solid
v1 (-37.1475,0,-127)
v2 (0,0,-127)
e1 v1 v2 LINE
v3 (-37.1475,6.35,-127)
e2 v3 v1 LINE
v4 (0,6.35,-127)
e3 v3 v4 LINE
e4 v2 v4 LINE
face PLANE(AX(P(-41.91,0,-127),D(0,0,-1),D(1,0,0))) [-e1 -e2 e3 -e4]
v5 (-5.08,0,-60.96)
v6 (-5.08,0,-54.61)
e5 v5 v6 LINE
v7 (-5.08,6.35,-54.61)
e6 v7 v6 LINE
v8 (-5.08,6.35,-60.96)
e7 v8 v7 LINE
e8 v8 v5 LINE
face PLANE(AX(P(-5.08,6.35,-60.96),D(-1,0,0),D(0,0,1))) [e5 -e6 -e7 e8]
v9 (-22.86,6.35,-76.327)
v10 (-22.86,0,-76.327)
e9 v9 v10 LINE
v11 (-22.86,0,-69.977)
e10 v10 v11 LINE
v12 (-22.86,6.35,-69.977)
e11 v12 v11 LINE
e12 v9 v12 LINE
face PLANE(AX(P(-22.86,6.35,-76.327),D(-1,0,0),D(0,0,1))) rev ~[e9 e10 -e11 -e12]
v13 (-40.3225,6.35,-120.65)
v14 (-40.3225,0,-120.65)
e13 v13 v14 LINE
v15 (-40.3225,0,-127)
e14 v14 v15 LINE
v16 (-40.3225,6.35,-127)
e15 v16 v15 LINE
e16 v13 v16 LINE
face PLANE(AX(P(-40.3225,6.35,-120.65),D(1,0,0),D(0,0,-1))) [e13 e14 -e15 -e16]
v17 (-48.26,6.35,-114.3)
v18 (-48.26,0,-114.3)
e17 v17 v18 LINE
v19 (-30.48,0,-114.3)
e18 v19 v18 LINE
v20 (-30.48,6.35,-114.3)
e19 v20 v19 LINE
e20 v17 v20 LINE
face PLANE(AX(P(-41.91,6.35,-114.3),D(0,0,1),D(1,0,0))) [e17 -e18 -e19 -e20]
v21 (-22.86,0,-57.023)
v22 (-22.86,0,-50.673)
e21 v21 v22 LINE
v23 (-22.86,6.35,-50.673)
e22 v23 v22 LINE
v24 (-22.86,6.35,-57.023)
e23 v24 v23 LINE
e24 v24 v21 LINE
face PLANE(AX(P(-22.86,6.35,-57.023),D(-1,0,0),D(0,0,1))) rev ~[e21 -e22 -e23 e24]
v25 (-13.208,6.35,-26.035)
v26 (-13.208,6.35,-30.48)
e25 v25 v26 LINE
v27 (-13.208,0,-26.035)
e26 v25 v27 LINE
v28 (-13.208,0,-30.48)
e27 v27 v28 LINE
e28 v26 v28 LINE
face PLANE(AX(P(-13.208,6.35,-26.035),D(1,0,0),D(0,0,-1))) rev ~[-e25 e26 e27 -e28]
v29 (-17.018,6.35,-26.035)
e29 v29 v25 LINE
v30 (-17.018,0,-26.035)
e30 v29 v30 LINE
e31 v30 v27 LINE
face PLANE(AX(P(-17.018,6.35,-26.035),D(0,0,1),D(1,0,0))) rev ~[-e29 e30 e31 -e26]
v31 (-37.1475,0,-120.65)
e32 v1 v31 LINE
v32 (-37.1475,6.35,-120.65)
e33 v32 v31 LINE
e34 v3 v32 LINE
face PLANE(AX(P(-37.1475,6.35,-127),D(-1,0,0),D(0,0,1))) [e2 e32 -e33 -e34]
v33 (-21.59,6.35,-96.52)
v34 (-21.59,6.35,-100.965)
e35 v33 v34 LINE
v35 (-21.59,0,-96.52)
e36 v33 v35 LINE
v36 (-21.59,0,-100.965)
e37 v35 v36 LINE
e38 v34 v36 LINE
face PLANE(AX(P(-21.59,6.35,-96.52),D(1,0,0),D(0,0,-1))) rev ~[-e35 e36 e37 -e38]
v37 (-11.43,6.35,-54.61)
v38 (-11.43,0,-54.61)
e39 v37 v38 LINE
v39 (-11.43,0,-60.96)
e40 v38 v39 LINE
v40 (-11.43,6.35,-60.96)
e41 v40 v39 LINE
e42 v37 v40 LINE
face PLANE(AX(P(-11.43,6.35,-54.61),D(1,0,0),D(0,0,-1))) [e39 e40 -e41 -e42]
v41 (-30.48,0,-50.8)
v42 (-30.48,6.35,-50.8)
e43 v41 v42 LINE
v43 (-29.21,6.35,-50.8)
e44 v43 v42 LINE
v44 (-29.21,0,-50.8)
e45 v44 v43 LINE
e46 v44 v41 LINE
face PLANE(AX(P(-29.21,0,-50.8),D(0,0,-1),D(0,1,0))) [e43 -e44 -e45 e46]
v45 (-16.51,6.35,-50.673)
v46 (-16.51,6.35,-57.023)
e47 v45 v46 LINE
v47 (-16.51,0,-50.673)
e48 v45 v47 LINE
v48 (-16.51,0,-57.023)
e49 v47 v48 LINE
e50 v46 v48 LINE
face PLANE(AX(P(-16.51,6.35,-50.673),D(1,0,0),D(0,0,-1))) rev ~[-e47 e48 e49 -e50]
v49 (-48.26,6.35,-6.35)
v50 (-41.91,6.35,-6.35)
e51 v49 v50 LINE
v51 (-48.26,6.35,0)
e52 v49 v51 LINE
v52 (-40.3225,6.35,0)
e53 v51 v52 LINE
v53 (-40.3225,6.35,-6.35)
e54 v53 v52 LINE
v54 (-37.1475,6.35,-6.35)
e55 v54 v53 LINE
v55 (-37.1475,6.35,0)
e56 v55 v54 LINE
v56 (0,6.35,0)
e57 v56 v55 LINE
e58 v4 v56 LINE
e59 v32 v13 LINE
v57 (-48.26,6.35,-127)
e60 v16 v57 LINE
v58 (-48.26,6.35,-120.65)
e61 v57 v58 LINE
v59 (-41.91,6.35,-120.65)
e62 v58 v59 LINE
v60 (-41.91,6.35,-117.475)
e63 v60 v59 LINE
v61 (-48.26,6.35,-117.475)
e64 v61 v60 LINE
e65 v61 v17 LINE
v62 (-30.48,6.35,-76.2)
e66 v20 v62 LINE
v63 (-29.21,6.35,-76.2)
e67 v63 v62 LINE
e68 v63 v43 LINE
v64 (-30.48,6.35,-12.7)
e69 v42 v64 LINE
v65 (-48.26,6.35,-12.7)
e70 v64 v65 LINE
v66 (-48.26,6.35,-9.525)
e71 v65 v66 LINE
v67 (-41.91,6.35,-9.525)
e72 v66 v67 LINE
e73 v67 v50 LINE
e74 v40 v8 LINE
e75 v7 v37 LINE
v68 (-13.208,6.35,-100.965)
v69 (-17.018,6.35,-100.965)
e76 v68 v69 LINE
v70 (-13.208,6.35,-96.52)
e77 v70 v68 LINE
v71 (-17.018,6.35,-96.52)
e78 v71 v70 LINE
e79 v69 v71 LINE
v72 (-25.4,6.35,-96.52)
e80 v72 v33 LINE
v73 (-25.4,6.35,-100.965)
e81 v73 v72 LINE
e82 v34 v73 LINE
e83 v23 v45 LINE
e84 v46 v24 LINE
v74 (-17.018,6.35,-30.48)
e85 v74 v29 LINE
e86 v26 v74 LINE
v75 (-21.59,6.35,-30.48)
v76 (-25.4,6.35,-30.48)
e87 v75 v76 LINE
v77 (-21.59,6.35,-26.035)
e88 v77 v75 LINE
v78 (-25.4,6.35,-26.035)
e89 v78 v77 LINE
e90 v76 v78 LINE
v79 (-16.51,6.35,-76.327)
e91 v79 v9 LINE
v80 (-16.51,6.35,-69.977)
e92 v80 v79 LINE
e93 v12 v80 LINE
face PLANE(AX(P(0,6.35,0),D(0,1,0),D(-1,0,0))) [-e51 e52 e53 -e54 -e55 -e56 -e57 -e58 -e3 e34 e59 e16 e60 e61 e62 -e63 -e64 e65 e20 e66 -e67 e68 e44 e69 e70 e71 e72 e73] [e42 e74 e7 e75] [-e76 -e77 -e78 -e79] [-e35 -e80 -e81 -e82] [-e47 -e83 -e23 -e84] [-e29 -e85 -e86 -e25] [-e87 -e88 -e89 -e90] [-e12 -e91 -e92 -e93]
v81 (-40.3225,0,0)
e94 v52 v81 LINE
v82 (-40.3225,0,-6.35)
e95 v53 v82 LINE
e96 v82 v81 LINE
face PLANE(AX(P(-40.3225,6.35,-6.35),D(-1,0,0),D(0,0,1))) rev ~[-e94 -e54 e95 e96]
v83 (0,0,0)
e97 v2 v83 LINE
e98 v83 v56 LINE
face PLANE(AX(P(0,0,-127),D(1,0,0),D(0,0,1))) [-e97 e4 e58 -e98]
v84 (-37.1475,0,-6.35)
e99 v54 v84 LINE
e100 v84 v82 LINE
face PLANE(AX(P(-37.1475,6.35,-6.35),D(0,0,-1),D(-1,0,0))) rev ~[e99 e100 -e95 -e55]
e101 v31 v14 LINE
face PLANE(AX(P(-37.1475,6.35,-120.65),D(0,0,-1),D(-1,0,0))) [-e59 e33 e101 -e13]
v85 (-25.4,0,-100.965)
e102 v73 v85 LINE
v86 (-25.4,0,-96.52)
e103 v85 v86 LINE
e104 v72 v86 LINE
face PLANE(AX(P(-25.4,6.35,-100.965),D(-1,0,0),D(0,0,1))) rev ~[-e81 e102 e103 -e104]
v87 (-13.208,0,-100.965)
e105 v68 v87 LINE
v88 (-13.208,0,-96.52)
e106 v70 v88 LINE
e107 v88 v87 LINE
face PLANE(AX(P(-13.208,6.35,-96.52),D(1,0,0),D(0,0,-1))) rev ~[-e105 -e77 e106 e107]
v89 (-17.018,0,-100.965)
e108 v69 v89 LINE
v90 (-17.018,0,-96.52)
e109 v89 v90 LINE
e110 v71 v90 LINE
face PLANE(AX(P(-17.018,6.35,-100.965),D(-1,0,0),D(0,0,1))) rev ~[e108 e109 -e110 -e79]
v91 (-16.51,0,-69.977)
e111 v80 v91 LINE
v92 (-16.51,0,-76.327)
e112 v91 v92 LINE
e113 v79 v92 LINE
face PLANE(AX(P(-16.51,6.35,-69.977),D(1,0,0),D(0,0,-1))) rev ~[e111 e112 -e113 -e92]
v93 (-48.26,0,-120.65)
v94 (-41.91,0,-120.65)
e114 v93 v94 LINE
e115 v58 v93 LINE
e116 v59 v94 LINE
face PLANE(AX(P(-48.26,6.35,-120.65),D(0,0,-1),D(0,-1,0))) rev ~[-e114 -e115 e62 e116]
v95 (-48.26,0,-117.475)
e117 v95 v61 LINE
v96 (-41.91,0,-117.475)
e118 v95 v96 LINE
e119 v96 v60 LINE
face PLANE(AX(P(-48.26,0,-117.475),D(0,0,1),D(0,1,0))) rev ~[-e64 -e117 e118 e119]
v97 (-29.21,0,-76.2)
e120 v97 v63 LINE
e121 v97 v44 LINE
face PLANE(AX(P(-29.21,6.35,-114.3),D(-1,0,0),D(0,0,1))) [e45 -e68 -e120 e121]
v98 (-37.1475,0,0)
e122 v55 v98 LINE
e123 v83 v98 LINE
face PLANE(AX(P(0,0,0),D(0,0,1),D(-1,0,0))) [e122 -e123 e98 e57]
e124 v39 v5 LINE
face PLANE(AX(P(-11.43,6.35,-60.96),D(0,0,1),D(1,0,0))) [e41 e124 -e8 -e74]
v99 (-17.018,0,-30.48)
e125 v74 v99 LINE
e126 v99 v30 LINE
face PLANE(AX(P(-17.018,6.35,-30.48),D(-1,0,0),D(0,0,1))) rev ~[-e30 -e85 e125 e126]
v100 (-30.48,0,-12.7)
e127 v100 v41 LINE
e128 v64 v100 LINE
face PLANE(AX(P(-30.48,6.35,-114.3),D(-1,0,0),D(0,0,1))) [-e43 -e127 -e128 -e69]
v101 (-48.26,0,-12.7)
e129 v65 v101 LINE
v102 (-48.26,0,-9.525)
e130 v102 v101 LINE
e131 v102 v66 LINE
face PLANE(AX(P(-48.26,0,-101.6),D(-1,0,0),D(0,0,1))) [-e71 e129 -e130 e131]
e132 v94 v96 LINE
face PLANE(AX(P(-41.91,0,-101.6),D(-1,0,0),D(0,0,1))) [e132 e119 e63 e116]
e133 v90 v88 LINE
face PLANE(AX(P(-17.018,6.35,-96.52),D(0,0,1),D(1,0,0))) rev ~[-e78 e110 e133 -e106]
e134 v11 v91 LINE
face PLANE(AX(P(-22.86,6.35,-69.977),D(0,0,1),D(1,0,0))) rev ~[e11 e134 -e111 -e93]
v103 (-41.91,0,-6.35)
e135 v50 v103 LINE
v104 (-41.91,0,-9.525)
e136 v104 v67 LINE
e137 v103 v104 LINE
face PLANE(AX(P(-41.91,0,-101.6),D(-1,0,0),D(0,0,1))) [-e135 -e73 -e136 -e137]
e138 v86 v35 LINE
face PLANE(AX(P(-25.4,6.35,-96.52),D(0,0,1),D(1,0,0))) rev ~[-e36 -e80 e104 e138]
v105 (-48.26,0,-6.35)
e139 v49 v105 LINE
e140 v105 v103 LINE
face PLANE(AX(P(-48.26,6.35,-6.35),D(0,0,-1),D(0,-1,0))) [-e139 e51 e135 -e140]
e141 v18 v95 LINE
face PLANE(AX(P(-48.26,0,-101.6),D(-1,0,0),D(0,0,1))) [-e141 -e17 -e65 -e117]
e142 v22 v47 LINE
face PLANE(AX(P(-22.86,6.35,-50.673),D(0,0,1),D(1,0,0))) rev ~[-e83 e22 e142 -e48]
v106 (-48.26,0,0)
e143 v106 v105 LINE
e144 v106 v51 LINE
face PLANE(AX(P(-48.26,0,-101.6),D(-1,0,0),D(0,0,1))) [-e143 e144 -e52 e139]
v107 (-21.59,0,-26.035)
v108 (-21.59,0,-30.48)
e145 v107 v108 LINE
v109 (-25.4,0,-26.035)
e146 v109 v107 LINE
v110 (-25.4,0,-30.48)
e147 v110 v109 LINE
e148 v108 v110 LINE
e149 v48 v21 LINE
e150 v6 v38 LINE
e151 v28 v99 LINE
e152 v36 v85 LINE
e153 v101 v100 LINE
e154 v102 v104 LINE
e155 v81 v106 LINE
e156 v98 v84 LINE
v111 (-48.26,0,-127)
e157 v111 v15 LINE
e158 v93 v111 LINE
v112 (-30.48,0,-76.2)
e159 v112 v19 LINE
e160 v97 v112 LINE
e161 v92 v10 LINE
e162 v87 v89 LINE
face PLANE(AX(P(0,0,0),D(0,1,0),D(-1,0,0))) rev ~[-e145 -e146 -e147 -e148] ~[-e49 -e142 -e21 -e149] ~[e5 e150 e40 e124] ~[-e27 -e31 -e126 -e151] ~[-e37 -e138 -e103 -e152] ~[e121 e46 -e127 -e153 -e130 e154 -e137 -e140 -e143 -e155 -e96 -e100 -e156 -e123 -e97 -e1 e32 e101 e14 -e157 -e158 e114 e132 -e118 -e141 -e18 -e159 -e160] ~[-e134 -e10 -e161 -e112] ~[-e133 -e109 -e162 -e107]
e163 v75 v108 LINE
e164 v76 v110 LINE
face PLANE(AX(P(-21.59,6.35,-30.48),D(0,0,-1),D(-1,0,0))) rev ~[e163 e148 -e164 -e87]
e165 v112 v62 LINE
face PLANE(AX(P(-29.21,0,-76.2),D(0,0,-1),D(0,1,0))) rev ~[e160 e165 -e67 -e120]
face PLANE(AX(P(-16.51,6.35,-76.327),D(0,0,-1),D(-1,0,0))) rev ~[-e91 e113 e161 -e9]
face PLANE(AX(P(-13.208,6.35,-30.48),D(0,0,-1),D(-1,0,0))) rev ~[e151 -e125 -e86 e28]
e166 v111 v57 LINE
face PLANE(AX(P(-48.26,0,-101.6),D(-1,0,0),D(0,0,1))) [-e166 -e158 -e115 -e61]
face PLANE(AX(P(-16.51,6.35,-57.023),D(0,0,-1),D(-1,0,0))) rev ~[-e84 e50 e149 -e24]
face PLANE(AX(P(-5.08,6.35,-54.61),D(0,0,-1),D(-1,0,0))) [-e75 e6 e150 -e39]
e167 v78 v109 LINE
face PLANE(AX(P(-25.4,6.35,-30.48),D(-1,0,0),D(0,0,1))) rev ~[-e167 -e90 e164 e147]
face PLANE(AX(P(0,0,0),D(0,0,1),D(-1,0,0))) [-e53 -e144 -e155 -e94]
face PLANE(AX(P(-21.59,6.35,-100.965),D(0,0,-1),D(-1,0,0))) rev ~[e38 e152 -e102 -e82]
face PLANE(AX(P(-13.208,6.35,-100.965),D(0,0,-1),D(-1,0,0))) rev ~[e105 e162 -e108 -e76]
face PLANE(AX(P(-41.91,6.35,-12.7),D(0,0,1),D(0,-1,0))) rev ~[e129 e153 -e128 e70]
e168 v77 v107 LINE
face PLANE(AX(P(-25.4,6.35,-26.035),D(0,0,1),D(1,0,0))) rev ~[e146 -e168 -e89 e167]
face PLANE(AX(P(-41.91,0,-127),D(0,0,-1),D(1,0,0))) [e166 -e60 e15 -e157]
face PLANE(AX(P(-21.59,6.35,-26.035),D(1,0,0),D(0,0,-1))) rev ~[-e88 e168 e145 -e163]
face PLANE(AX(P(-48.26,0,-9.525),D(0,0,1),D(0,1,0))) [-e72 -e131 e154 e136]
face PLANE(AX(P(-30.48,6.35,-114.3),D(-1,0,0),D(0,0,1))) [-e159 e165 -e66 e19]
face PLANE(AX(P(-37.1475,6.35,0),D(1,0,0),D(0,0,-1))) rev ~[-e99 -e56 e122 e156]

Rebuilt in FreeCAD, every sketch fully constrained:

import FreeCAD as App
import Part
import Sketcher
Q = App.Units.Quantity


def add_polygon(sketch, points):
    """Adds a closed chain of lines whose ends are joined by coincident constraints."""
    first, n = sketch.GeometryCount, len(points)
    for a, b in zip(points, points[1:] + points[:1]):
        sketch.addGeometry(Part.LineSegment(App.Vector(*a, 0), App.Vector(*b, 0)), False)
    for i in range(n):
        sketch.addConstraint(Sketcher.Constraint("Coincident", first + i, 2, first + (i + 1) % n, 1))

doc = App.newDocument("Part")
body = doc.addObject("PartDesign::Body", "Body")

# Sketch on XZ plane
sketch1 = body.newObject("Sketcher::SketchObject", "Sketch")
sketch1.AttachmentSupport = (doc.getObject("XZ_Plane"), [""])
sketch1.MapMode = "FlatFace"
add_polygon(sketch1, [(-42, 0), (0, 0), (0, -127), (-42, -127)])  # lines 0-3
sketch1.addConstraint([
    Sketcher.Constraint("Horizontal", 0),
    Sketcher.Constraint("Vertical", 1),
    Sketcher.Constraint("Horizontal", 2),
    Sketcher.Constraint("Vertical", 3),
    Sketcher.Constraint("Coincident", 0, 2, -1, 1),
    Sketcher.Constraint("DistanceY", 1, 2, 1, 1, Q("5 in")),
    Sketcher.Constraint("DistanceX", 0, 1, 0, 2, Q("1.65 in")),
])
pad1 = body.newObject("PartDesign::Pad", "Pad")
pad1.Profile = sketch1
pad1.Length = Q("0.25 in")
pad1.Reversed = True

# Sketch on XZ plane
sketch2 = body.newObject("Sketcher::SketchObject", "Sketch001")
sketch2.AttachmentSupport = (doc.getObject("XZ_Plane"), [""])
sketch2.MapMode = "FlatFace"
sketch2.AttachmentOffset = App.Placement(App.Vector(0, 0, -0.25 * 25.4), App.Rotation())
add_polygon(sketch2, [(-25.4, -30.5), (-25.4, -26), (-21.6, -26), (-21.6, -30.5)])  # lines 0-3
add_polygon(sketch2, [(-25.4, -101), (-25.4, -96.5), (-21.6, -96.5), (-21.6, -101)])  # lines 4-7
add_polygon(sketch2, [(-17, -30.5), (-17, -26), (-13.2, -26), (-13.2, -30.5)])  # lines 8-11
add_polygon(sketch2, [(-17, -101), (-17, -96.5), (-13.2, -96.5), (-13.2, -101)])  # lines 12-15
sketch2.addConstraint([
    Sketcher.Constraint("Vertical", 0),
    Sketcher.Constraint("Horizontal", 1),
    Sketcher.Constraint("Vertical", 2),
    Sketcher.Constraint("Horizontal", 3),
    Sketcher.Constraint("Vertical", 4),
    Sketcher.Constraint("Horizontal", 5),
    Sketcher.Constraint("Vertical", 6),
    Sketcher.Constraint("Horizontal", 7),
    Sketcher.Constraint("Vertical", 8),
    Sketcher.Constraint("Horizontal", 9),
    Sketcher.Constraint("Vertical", 10),
    Sketcher.Constraint("Horizontal", 11),
    Sketcher.Constraint("Vertical", 12),
    Sketcher.Constraint("Horizontal", 13),
    Sketcher.Constraint("Vertical", 14),
    Sketcher.Constraint("Horizontal", 15),
    Sketcher.Constraint("Horizontal", 1, 2, 8, 2),
    Sketcher.Constraint("Horizontal", 3, 2, 10, 2),
    Sketcher.Constraint("Horizontal", 5, 2, 12, 2),
    Sketcher.Constraint("Horizontal", 7, 2, 14, 2),
    Sketcher.Constraint("Vertical", 3, 2, 4, 2),
    Sketcher.Constraint("Vertical", 2, 2, 5, 2),
    Sketcher.Constraint("Vertical", 11, 2, 12, 2),
    Sketcher.Constraint("Vertical", 10, 2, 13, 2),
    Sketcher.Constraint("Equal", 7, 9),
    Sketcher.Constraint("Equal", 2, 4),
    Sketcher.Constraint("DistanceX", 1, 1, 1, 2, Q("0.15 in")),
    Sketcher.Constraint("DistanceY", 0, 1, 0, 2, Q("0.175 in")),
    Sketcher.Constraint("DistanceX", 0, 2, 8, 2, Q("0.33 in")),
    Sketcher.Constraint("DistanceY", 0, 2, -1, 1, Q("1.025 in")),
    Sketcher.Constraint("DistanceX", 0, 2, -1, 1, Q("1 in")),
    Sketcher.Constraint("DistanceY", 4, 2, -1, 1, Q("3.8 in")),
])
pocket1 = body.newObject("PartDesign::Pocket", "Pocket")
pocket1.Profile = sketch2
pocket1.Length = Q("0.25 in")
pocket1.Reversed = True

# Sketch on XZ plane
sketch3 = body.newObject("Sketcher::SketchObject", "Sketch002")
sketch3.AttachmentSupport = (doc.getObject("XZ_Plane"), [""])
sketch3.MapMode = "FlatFace"
sketch3.AttachmentOffset = App.Placement(App.Vector(0, 0, -0.25 * 25.4), App.Rotation())
add_polygon(sketch3, [(-37.1, -120.7), (-37.1, -127), (-40.3, -127), (-40.3, -120.7)])  # lines 0-3
add_polygon(sketch3, [(-40.3, -6.3), (-40.3, 0), (-37.1, 0), (-37.1, -6.3)])  # lines 4-7
sketch3.addConstraint([
    Sketcher.Constraint("Vertical", 0),
    Sketcher.Constraint("Horizontal", 1),
    Sketcher.Constraint("Vertical", 2),
    Sketcher.Constraint("Horizontal", 3),
    Sketcher.Constraint("Vertical", 4),
    Sketcher.Constraint("Horizontal", 5),
    Sketcher.Constraint("Vertical", 6),
    Sketcher.Constraint("Horizontal", 7),
    Sketcher.Constraint("PointOnObject", 4, 2, -1),
    Sketcher.Constraint("Vertical", 2, 2, 4, 2),
    Sketcher.Constraint("Vertical", 3, 2, 5, 2),
    Sketcher.Constraint("Equal", 2, 4),
    Sketcher.Constraint("DistanceY", 0, 2, 0, 1, Q("0.25 in")),
    Sketcher.Constraint("DistanceX", 1, 2, 1, 1, Q("0.125 in")),
    Sketcher.Constraint("DistanceY", 0, 2, -1, 1, Q("5 in")),
    Sketcher.Constraint("DistanceX", 0, 2, -1, 1, Q("1.4625 in")),
])
pocket2 = body.newObject("PartDesign::Pocket", "Pocket001")
pocket2.Profile = sketch3
pocket2.Length = Q("1 in")
pocket2.Reversed = True

# Sketch on YZ plane
sketch4 = body.newObject("Sketcher::SketchObject", "Sketch003")
sketch4.AttachmentSupport = (doc.getObject("YZ_Plane"), [""])
sketch4.MapMode = "FlatFace"
sketch4.AttachmentOffset = App.Placement(App.Vector(0, 0, -1.65 * 25.4), App.Rotation())
add_polygon(sketch4, [(6, 0), (6, -13), (0, -13), (0, 0)])  # lines 0-3
add_polygon(sketch4, [(0, -127), (0, -114), (6, -114), (6, -127)])  # lines 4-7
sketch4.addConstraint([
    Sketcher.Constraint("Vertical", 0),
    Sketcher.Constraint("Horizontal", 1),
    Sketcher.Constraint("Vertical", 2),
    Sketcher.Constraint("Horizontal", 3),
    Sketcher.Constraint("Vertical", 4),
    Sketcher.Constraint("Horizontal", 5),
    Sketcher.Constraint("Vertical", 6),
    Sketcher.Constraint("Horizontal", 7),
    Sketcher.Constraint("Coincident", 2, 2, -1, 1),
    Sketcher.Constraint("PointOnObject", 4, 2, -2),
    Sketcher.Constraint("Vertical", 3, 2, 5, 2),
    Sketcher.Constraint("Equal", 2, 4),
    Sketcher.Constraint("DistanceY", 0, 2, 0, 1, Q("0.5 in")),
    Sketcher.Constraint("DistanceY", 6, 2, -1, 1, Q("5 in")),
    Sketcher.Constraint("DistanceX", 1, 2, 1, 1, Q("0.25 in")),
])
pad2 = body.newObject("PartDesign::Pad", "Pad001")
pad2.Profile = sketch4
pad2.Length = Q("0.25 in")
pad2.Reversed = True

# Sketch on XZ plane
sketch5 = body.newObject("Sketcher::SketchObject", "Sketch004")
sketch5.AttachmentSupport = (doc.getObject("XZ_Plane"), [""])
sketch5.MapMode = "FlatFace"
sketch5.AttachmentOffset = App.Placement(App.Vector(0, 0, -0.25 * 25.4), App.Rotation())
add_polygon(sketch5, [(-29, -114), (-42, -114), (-42, -13), (-29, -13)])  # lines 0-3
sketch5.addConstraint([
    Sketcher.Constraint("Horizontal", 0),
    Sketcher.Constraint("Vertical", 1),
    Sketcher.Constraint("Horizontal", 2),
    Sketcher.Constraint("Vertical", 3),
    Sketcher.Constraint("DistanceX", 0, 2, 0, 1, Q("0.5 in")),
    Sketcher.Constraint("DistanceY", 1, 2, -1, 1, Q("0.5 in")),
    Sketcher.Constraint("DistanceY", 1, 1, 1, 2, Q("4 in")),
    Sketcher.Constraint("DistanceX", 0, 2, -1, 1, Q("1.65 in")),
])
pocket3 = body.newObject("PartDesign::Pocket", "Pocket002")
pocket3.Profile = sketch5
pocket3.Length = Q("0.25 in")
pocket3.Reversed = True

# Sketch on YZ plane
sketch6 = body.newObject("Sketcher::SketchObject", "Sketch005")
sketch6.AttachmentSupport = (doc.getObject("YZ_Plane"), [""])
sketch6.MapMode = "FlatFace"
sketch6.AttachmentOffset = App.Placement(App.Vector(0, 0, -1.9 * 25.4), App.Rotation())
add_polygon(sketch6, [(0, -9.5), (0, -6.3), (6.3, -6.3), (6.3, -9.5)])  # lines 0-3
add_polygon(sketch6, [(6.3, -120.7), (0, -120.7), (0, -117.5), (6.3, -117.5)])  # lines 4-7
sketch6.addConstraint([
    Sketcher.Constraint("Vertical", 0),
    Sketcher.Constraint("Horizontal", 1),
    Sketcher.Constraint("Vertical", 2),
    Sketcher.Constraint("Horizontal", 3),
    Sketcher.Constraint("Horizontal", 4),
    Sketcher.Constraint("Vertical", 5),
    Sketcher.Constraint("Horizontal", 6),
    Sketcher.Constraint("Vertical", 7),
    Sketcher.Constraint("PointOnObject", 0, 2, -2),
    Sketcher.Constraint("PointOnObject", 4, 2, -2),
    Sketcher.Constraint("Vertical", 2, 2, 6, 2),
    Sketcher.Constraint("Equal", 2, 5),
    Sketcher.Constraint("DistanceX", 1, 1, 1, 2, Q("0.25 in")),
    Sketcher.Constraint("DistanceY", 0, 1, 0, 2, Q("0.125 in")),
    Sketcher.Constraint("DistanceY", 0, 2, -1, 1, Q("0.25 in")),
    Sketcher.Constraint("DistanceY", 4, 2, 0, 2, Q("4.5 in")),
])
pocket4 = body.newObject("PartDesign::Pocket", "Pocket003")
pocket4.Profile = sketch6
pocket4.Length = Q("0.25 in")
pocket4.Reversed = True

# Sketch on XZ plane
sketch7 = body.newObject("Sketcher::SketchObject", "Sketch006")
sketch7.AttachmentSupport = (doc.getObject("XZ_Plane"), [""])
sketch7.MapMode = "FlatFace"
sketch7.AttachmentOffset = App.Placement(App.Vector(0, 0, -0.25 * 25.4), App.Rotation())
add_polygon(sketch7, [(-5, -61), (-11, -61), (-11, -55), (-5, -55)])  # lines 0-3
sketch7.addConstraint([
    Sketcher.Constraint("Horizontal", 0),
    Sketcher.Constraint("Vertical", 1),
    Sketcher.Constraint("Horizontal", 2),
    Sketcher.Constraint("Vertical", 3),
    Sketcher.Constraint("Equal", 2, 1),
    Sketcher.Constraint("DistanceX", 0, 2, 0, 1, Q("0.25 in")),
    Sketcher.Constraint("DistanceY", 1, 2, -1, 1, Q("2.15 in")),
    Sketcher.Constraint("DistanceX", 2, 2, -1, 1, Q("0.2 in")),
])
pocket5 = body.newObject("PartDesign::Pocket", "Pocket004")
pocket5.Profile = sketch7
pocket5.Length = Q("0.25 in")
pocket5.Reversed = True

# Sketch on XZ plane
sketch8 = body.newObject("Sketcher::SketchObject", "Sketch007")
sketch8.AttachmentSupport = (doc.getObject("XZ_Plane"), [""])
sketch8.MapMode = "FlatFace"
sketch8.AttachmentOffset = App.Placement(App.Vector(0, 0, -0.25 * 25.4), App.Rotation())
add_polygon(sketch8, [(-23, -57), (-23, -51), (-17, -51), (-17, -57)])  # lines 0-3
add_polygon(sketch8, [(-23, -76), (-23, -70), (-17, -70), (-17, -76)])  # lines 4-7
sketch8.addConstraint([
    Sketcher.Constraint("Vertical", 0),
    Sketcher.Constraint("Horizontal", 1),
    Sketcher.Constraint("Vertical", 2),
    Sketcher.Constraint("Horizontal", 3),
    Sketcher.Constraint("Vertical", 4),
    Sketcher.Constraint("Horizontal", 5),
    Sketcher.Constraint("Vertical", 6),
    Sketcher.Constraint("Horizontal", 7),
    Sketcher.Constraint("Vertical", 3, 2, 4, 2),
    Sketcher.Constraint("Vertical", 2, 2, 5, 2),
    Sketcher.Constraint("Equal", 7, 0),
    Sketcher.Constraint("Equal", 2, 4),
    Sketcher.Constraint("DistanceX", 1, 1, 1, 2, Q("0.25 in")),
    Sketcher.Constraint("DistanceY", 0, 2, -1, 1, Q("1.995 in")),
    Sketcher.Constraint("DistanceX", 0, 2, -1, 1, Q("0.9 in")),
    Sketcher.Constraint("DistanceY", 4, 2, 3, 2, Q("0.51 in")),
])
pocket6 = body.newObject("PartDesign::Pocket", "Pocket005")
pocket6.Profile = sketch8
pocket6.Length = Q("0.25 in")
pocket6.Reversed = True

# Sketch on YZ plane
sketch9 = body.newObject("Sketcher::SketchObject", "Sketch008")
sketch9.AttachmentSupport = (doc.getObject("YZ_Plane"), [""])
sketch9.MapMode = "FlatFace"
sketch9.AttachmentOffset = App.Placement(App.Vector(0, 0, -1.15 * 25.4), App.Rotation())
add_polygon(sketch9, [(0, -51), (0, -13), (6, -13), (6, -51)])  # lines 0-3
add_polygon(sketch9, [(0, -114), (0, -76), (6, -76), (6, -114)])  # lines 4-7
sketch9.addConstraint([
    Sketcher.Constraint("Vertical", 0),
    Sketcher.Constraint("Horizontal", 1),
    Sketcher.Constraint("Vertical", 2),
    Sketcher.Constraint("Horizontal", 3),
    Sketcher.Constraint("Vertical", 4),
    Sketcher.Constraint("Horizontal", 5),
    Sketcher.Constraint("Vertical", 6),
    Sketcher.Constraint("Horizontal", 7),
    Sketcher.Constraint("PointOnObject", 0, 2, -2),
    Sketcher.Constraint("PointOnObject", 4, 2, -2),
    Sketcher.Constraint("Vertical", 2, 2, 5, 2),
    Sketcher.Constraint("Equal", 2, 4),
    Sketcher.Constraint("DistanceY", 0, 1, 0, 2, Q("1.5 in")),
    Sketcher.Constraint("DistanceY", 2, 2, -1, 1, Q("2 in")),
    Sketcher.Constraint("DistanceY", 4, 2, -1, 1, Q("3 in")),
    Sketcher.Constraint("DistanceX", 1, 1, 1, 2, Q("0.25 in")),
])
pad3 = body.newObject("PartDesign::Pad", "Pad002")
pad3.Profile = sketch9
pad3.Length = Q("0.05 in")
pad3.Reversed = True

doc.recompute()
